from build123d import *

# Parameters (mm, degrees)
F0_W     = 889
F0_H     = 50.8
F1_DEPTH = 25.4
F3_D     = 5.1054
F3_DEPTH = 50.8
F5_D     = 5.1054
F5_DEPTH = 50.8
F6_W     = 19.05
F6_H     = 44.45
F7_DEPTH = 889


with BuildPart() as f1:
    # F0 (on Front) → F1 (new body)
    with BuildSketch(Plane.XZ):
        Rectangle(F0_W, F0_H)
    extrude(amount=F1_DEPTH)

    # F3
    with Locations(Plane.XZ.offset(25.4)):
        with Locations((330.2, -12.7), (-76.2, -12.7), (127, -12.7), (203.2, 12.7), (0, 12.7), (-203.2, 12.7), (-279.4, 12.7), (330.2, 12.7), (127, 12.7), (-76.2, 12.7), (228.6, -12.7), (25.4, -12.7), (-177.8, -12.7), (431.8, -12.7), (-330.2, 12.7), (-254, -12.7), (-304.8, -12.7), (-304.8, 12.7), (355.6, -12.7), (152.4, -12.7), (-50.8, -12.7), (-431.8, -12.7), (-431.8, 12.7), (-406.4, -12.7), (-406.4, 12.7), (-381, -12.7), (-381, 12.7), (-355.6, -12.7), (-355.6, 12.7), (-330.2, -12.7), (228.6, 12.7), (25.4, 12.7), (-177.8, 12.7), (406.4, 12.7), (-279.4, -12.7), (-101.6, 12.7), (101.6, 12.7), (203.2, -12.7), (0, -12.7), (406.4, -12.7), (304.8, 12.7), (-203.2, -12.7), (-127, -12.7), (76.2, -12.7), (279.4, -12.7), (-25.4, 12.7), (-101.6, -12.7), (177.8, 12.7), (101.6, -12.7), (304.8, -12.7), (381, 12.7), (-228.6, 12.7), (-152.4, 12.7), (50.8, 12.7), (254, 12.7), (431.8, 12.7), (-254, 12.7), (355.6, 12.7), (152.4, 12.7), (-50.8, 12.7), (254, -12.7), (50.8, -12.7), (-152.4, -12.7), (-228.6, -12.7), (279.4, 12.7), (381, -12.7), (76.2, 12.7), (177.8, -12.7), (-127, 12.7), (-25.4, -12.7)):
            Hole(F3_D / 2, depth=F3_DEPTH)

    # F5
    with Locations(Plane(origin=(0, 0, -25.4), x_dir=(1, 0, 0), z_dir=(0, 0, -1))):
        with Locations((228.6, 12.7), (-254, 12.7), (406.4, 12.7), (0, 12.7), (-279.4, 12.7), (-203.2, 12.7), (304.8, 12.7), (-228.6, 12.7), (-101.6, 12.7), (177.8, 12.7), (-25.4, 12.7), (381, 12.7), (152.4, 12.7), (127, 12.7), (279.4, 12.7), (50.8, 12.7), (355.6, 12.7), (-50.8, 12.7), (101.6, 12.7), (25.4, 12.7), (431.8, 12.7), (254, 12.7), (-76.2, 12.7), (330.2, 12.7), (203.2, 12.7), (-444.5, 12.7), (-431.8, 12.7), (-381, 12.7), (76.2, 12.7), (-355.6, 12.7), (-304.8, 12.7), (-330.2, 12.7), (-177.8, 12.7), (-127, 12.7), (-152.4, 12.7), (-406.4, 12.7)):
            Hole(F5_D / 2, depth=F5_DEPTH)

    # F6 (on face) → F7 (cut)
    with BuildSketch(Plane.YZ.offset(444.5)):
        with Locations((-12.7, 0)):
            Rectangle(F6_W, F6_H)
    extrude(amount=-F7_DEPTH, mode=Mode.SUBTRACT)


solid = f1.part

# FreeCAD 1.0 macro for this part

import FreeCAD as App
import Part
import Sketcher
from FreeCAD import Vector
Q = App.Units.Quantity


def add_polygon(sketch, points):
    """Adds a closed chain of lines whose ends are joined by coincident constraints."""
    first, n = sketch.GeometryCount, len(points)
    for a, b in zip(points, points[1:] + points[:1]):
        sketch.addGeometry(Part.LineSegment(App.Vector(*a, 0), App.Vector(*b, 0)), False)
    for i in range(n):
        sketch.addConstraint(Sketcher.Constraint("Coincident", first + i, 2, first + (i + 1) % n, 1))

doc = App.newDocument("Part")
body = doc.addObject("PartDesign::Body", "Body")

sketch1 = doc.addObject("Sketcher::SketchObject", "Sketch")
body.addObject(sketch1)
sketch1.AttachmentSupport = (doc.XZ_Plane, [""])
sketch1.MapMode = "FlatFace"
add_polygon(sketch1, [(-444, 25), (-444, -25), (444, -25), (444, 25)])
sketch1.addConstraint([
    Sketcher.Constraint("Vertical", 0),
    Sketcher.Constraint("Horizontal", 1),
    Sketcher.Constraint("Vertical", 2),
    Sketcher.Constraint("Horizontal", 3),
    Sketcher.Constraint("Symmetric", 0, 2, 2, 2, -1, 1),
    Sketcher.Constraint("DistanceX", 1, 1, 1, 2, Q("35 in")),
    Sketcher.Constraint("DistanceY", 0, 2, 0, 1, Q("2 in")),
])
pad1 = doc.addObject("PartDesign::Pad", "Pad")
body.addObject(pad1)
pad1.Profile = sketch1
pad1.Length = Q("1 in")

sketch2 = doc.addObject("Sketcher::SketchObject", "Sketch001")
body.addObject(sketch2)
sketch2.AttachmentSupport = (doc.XZ_Plane, [""])
sketch2.MapMode = "FlatFace"
sketch2.AttachmentOffset = App.Placement(Vector(0, 0, 1 * 25.4), App.Rotation())
sketch2.addGeometry([
    Part.Circle(Vector(330.2, -12.7, 0), Vector(0, 0, 1), 2.6),
    Part.Circle(Vector(-76.2, -12.7, 0), Vector(0, 0, 1), 2.6),
    Part.Circle(Vector(127, -12.7, 0), Vector(0, 0, 1), 2.6),
    Part.Circle(Vector(203.2, 12.7, 0), Vector(0, 0, 1), 2.6),
    Part.Circle(Vector(0, 12.7, 0), Vector(0, 0, 1), 2.6),
    Part.Circle(Vector(-203.2, 12.7, 0), Vector(0, 0, 1), 2.6),
    Part.Circle(Vector(-279.4, 12.7, 0), Vector(0, 0, 1), 2.6),
    Part.Circle(Vector(330.2, 12.7, 0), Vector(0, 0, 1), 2.6),
    Part.Circle(Vector(127, 12.7, 0), Vector(0, 0, 1), 2.6),
    Part.Circle(Vector(-76.2, 12.7, 0), Vector(0, 0, 1), 2.6),
    Part.Circle(Vector(228.6, -12.7, 0), Vector(0, 0, 1), 2.6),
    Part.Circle(Vector(25.4, -12.7, 0), Vector(0, 0, 1), 2.6),
    Part.Circle(Vector(-177.8, -12.7, 0), Vector(0, 0, 1), 2.6),
    Part.Circle(Vector(431.8, -12.7, 0), Vector(0, 0, 1), 2.6),
    Part.Circle(Vector(-330.2, 12.7, 0), Vector(0, 0, 1), 2.6),
    Part.Circle(Vector(-254, -12.7, 0), Vector(0, 0, 1), 2.6),
    Part.Circle(Vector(-304.8, -12.7, 0), Vector(0, 0, 1), 2.6),
    Part.Circle(Vector(-304.8, 12.7, 0), Vector(0, 0, 1), 2.6),
    Part.Circle(Vector(355.6, -12.7, 0), Vector(0, 0, 1), 2.6),
    Part.Circle(Vector(152.4, -12.7, 0), Vector(0, 0, 1), 2.6),
    Part.Circle(Vector(-50.8, -12.7, 0), Vector(0, 0, 1), 2.6),
    Part.Circle(Vector(-431.8, -12.7, 0), Vector(0, 0, 1), 2.6),
    Part.Circle(Vector(-431.8, 12.7, 0), Vector(0, 0, 1), 2.6),
    Part.Circle(Vector(-406.4, -12.7, 0), Vector(0, 0, 1), 2.6),
    Part.Circle(Vector(-406.4, 12.7, 0), Vector(0, 0, 1), 2.6),
    Part.Circle(Vector(-381, -12.7, 0), Vector(0, 0, 1), 2.6),
    Part.Circle(Vector(-381, 12.7, 0), Vector(0, 0, 1), 2.6),
    Part.Circle(Vector(-355.6, -12.7, 0), Vector(0, 0, 1), 2.6),
    Part.Circle(Vector(-355.6, 12.7, 0), Vector(0, 0, 1), 2.6),
    Part.Circle(Vector(-330.2, -12.7, 0), Vector(0, 0, 1), 2.6),
    Part.Circle(Vector(228.6, 12.7, 0), Vector(0, 0, 1), 2.6),
    Part.Circle(Vector(25.4, 12.7, 0), Vector(0, 0, 1), 2.6),
    Part.Circle(Vector(-177.8, 12.7, 0), Vector(0, 0, 1), 2.6),
    Part.Circle(Vector(406.4, 12.7, 0), Vector(0, 0, 1), 2.6),
    Part.Circle(Vector(-279.4, -12.7, 0), Vector(0, 0, 1), 2.6),
    Part.Circle(Vector(-101.6, 12.7, 0), Vector(0, 0, 1), 2.6),
    Part.Circle(Vector(101.6, 12.7, 0), Vector(0, 0, 1), 2.6),
    Part.Circle(Vector(203.2, -12.7, 0), Vector(0, 0, 1), 2.6),
    Part.Circle(Vector(0, -12.7, 0), Vector(0, 0, 1), 2.6),
    Part.Circle(Vector(406.4, -12.7, 0), Vector(0, 0, 1), 2.6),
    Part.Circle(Vector(304.8, 12.7, 0), Vector(0, 0, 1), 2.6),
    Part.Circle(Vector(-203.2, -12.7, 0), Vector(0, 0, 1), 2.6),
    Part.Circle(Vector(-127, -12.7, 0), Vector(0, 0, 1), 2.6),
    Part.Circle(Vector(76.2, -12.7, 0), Vector(0, 0, 1), 2.6),
    Part.Circle(Vector(279.4, -12.7, 0), Vector(0, 0, 1), 2.6),
    Part.Circle(Vector(-25.4, 12.7, 0), Vector(0, 0, 1), 2.6),
    Part.Circle(Vector(-101.6, -12.7, 0), Vector(0, 0, 1), 2.6),
    Part.Circle(Vector(177.8, 12.7, 0), Vector(0, 0, 1), 2.6),
    Part.Circle(Vector(101.6, -12.7, 0), Vector(0, 0, 1), 2.6),
    Part.Circle(Vector(304.8, -12.7, 0), Vector(0, 0, 1), 2.6),
    Part.Circle(Vector(381, 12.7, 0), Vector(0, 0, 1), 2.6),
    Part.Circle(Vector(-228.6, 12.7, 0), Vector(0, 0, 1), 2.6),
    Part.Circle(Vector(-152.4, 12.7, 0), Vector(0, 0, 1), 2.6),
    Part.Circle(Vector(50.8, 12.7, 0), Vector(0, 0, 1), 2.6),
    Part.Circle(Vector(254, 12.7, 0), Vector(0, 0, 1), 2.6),
    Part.Circle(Vector(431.8, 12.7, 0), Vector(0, 0, 1), 2.6),
    Part.Circle(Vector(-254, 12.7, 0), Vector(0, 0, 1), 2.6),
    Part.Circle(Vector(355.6, 12.7, 0), Vector(0, 0, 1), 2.6),
    Part.Circle(Vector(152.4, 12.7, 0), Vector(0, 0, 1), 2.6),
    Part.Circle(Vector(-50.8, 12.7, 0), Vector(0, 0, 1), 2.6),
    Part.Circle(Vector(254, -12.7, 0), Vector(0, 0, 1), 2.6),
    Part.Circle(Vector(50.8, -12.7, 0), Vector(0, 0, 1), 2.6),
    Part.Circle(Vector(-152.4, -12.7, 0), Vector(0, 0, 1), 2.6),
    Part.Circle(Vector(-228.6, -12.7, 0), Vector(0, 0, 1), 2.6),
    Part.Circle(Vector(279.4, 12.7, 0), Vector(0, 0, 1), 2.6),
    Part.Circle(Vector(381, -12.7, 0), Vector(0, 0, 1), 2.6),
    Part.Circle(Vector(76.2, 12.7, 0), Vector(0, 0, 1), 2.6),
    Part.Circle(Vector(177.8, -12.7, 0), Vector(0, 0, 1), 2.6),
    Part.Circle(Vector(-127, 12.7, 0), Vector(0, 0, 1), 2.6),
    Part.Circle(Vector(-25.4, -12.7, 0), Vector(0, 0, 1), 2.6),
], False)
sketch2.addConstraint([
    Sketcher.Constraint("Equal", 0, 1),
    Sketcher.Constraint("Equal", 1, 2),
    Sketcher.Constraint("Equal", 2, 3),
    Sketcher.Constraint("Equal", 3, 4),
    Sketcher.Constraint("Equal", 4, 5),
    Sketcher.Constraint("Equal", 5, 6),
    Sketcher.Constraint("Equal", 6, 7),
    Sketcher.Constraint("Equal", 7, 8),
    Sketcher.Constraint("Equal", 8, 9),
    Sketcher.Constraint("Equal", 9, 10),
    Sketcher.Constraint("Equal", 10, 11),
    Sketcher.Constraint("Equal", 11, 12),
    Sketcher.Constraint("Equal", 12, 13),
    Sketcher.Constraint("Equal", 13, 14),
    Sketcher.Constraint("Equal", 14, 15),
    Sketcher.Constraint("Equal", 15, 16),
    Sketcher.Constraint("Equal", 16, 17),
    Sketcher.Constraint("Equal", 17, 18),
    Sketcher.Constraint("Equal", 18, 19),
    Sketcher.Constraint("Equal", 19, 20),
    Sketcher.Constraint("Equal", 20, 21),
    Sketcher.Constraint("Equal", 21, 22),
    Sketcher.Constraint("Equal", 22, 23),
    Sketcher.Constraint("Equal", 23, 24),
    Sketcher.Constraint("Equal", 24, 25),
    Sketcher.Constraint("Equal", 25, 26),
    Sketcher.Constraint("Equal", 26, 27),
    Sketcher.Constraint("Equal", 27, 28),
    Sketcher.Constraint("Equal", 28, 29),
    Sketcher.Constraint("Equal", 29, 30),
    Sketcher.Constraint("Equal", 30, 31),
    Sketcher.Constraint("Equal", 31, 32),
    Sketcher.Constraint("Equal", 32, 33),
    Sketcher.Constraint("Equal", 33, 34),
    Sketcher.Constraint("Equal", 34, 35),
    Sketcher.Constraint("Equal", 35, 36),
    Sketcher.Constraint("Equal", 36, 37),
    Sketcher.Constraint("Equal", 37, 38),
    Sketcher.Constraint("Equal", 38, 39),
    Sketcher.Constraint("Equal", 39, 40),
    Sketcher.Constraint("Equal", 40, 41),
    Sketcher.Constraint("Equal", 41, 42),
    Sketcher.Constraint("Equal", 42, 43),
    Sketcher.Constraint("Equal", 43, 44),
    Sketcher.Constraint("Equal", 44, 45),
    Sketcher.Constraint("Equal", 45, 46),
    Sketcher.Constraint("Equal", 46, 47),
    Sketcher.Constraint("Equal", 47, 48),
    Sketcher.Constraint("Equal", 48, 49),
    Sketcher.Constraint("Equal", 49, 50),
    Sketcher.Constraint("Equal", 50, 51),
    Sketcher.Constraint("Equal", 51, 52),
    Sketcher.Constraint("Equal", 52, 53),
    Sketcher.Constraint("Equal", 53, 54),
    Sketcher.Constraint("Equal", 54, 55),
    Sketcher.Constraint("Equal", 55, 56),
    Sketcher.Constraint("Equal", 56, 57),
    Sketcher.Constraint("Equal", 57, 58),
    Sketcher.Constraint("Equal", 58, 59),
    Sketcher.Constraint("Equal", 59, 60),
    Sketcher.Constraint("Equal", 60, 61),
    Sketcher.Constraint("Equal", 61, 62),
    Sketcher.Constraint("Equal", 62, 63),
    Sketcher.Constraint("Equal", 63, 64),
    Sketcher.Constraint("Equal", 64, 65),
    Sketcher.Constraint("Equal", 65, 66),
    Sketcher.Constraint("Equal", 66, 67),
    Sketcher.Constraint("Equal", 67, 68),
    Sketcher.Constraint("Equal", 68, 69),
    Sketcher.Constraint("Symmetric", 0, 3, 14, 3, -1, 1),
    Sketcher.Constraint("Symmetric", 13, 3, 22, 3, -1, 1),
    Sketcher.Constraint("Symmetric", 18, 3, 28, 3, -1, 1),
    Sketcher.Constraint("Symmetric", 7, 3, 29, 3, -1, 1),
    Sketcher.Constraint("Symmetric", 23, 3, 33, 3, -1, 1),
    Sketcher.Constraint("Symmetric", 5, 3, 37, 3, -1, 1),
    Sketcher.Constraint("Symmetric", 4, 3, 38, 3, -1, 1),
    Sketcher.Constraint("Symmetric", 24, 3, 39, 3, -1, 1),
    Sketcher.Constraint("Symmetric", 16, 3, 40, 3, -1, 1),
    Sketcher.Constraint("Symmetric", 3, 3, 41, 3, -1, 1),
    Sketcher.Constraint("Symmetric", 8, 3, 42, 3, -1, 1),
    Sketcher.Constraint("Symmetric", 9, 3, 43, 3, -1, 1),
    Sketcher.Constraint("Symmetric", 6, 3, 44, 3, -1, 1),
    Sketcher.Constraint("Symmetric", 11, 3, 45, 3, -1, 1),
    Sketcher.Constraint("Symmetric", 36, 3, 46, 3, -1, 1),
    Sketcher.Constraint("Symmetric", 12, 3, 47, 3, -1, 1),
    Sketcher.Constraint("Symmetric", 35, 3, 48, 3, -1, 1),
    Sketcher.Constraint("Symmetric", 17, 3, 49, 3, -1, 1),
    Sketcher.Constraint("Symmetric", 25, 3, 50, 3, -1, 1),
    Sketcher.Constraint("Symmetric", 10, 3, 51, 3, -1, 1),
    Sketcher.Constraint("Symmetric", 19, 3, 52, 3, -1, 1),
    Sketcher.Constraint("Symmetric", 20, 3, 53, 3, -1, 1),
    Sketcher.Constraint("Symmetric", 15, 3, 54, 3, -1, 1),
    Sketcher.Constraint("Symmetric", 21, 3, 55, 3, -1, 1),
    Sketcher.Constraint("Symmetric", 27, 3, 57, 3, -1, 1),
    Sketcher.Constraint("Symmetric", 56, 3, 60, 3, -1, 1),
    Sketcher.Constraint("Symmetric", 59, 3, 61, 3, -1, 1),
    Sketcher.Constraint("Symmetric", 58, 3, 62, 3, -1, 1),
    Sketcher.Constraint("Symmetric", 30, 3, 63, 3, -1, 1),
    Sketcher.Constraint("Symmetric", 34, 3, 64, 3, -1, 1),
    Sketcher.Constraint("Symmetric", 26, 3, 65, 3, -1, 1),
    Sketcher.Constraint("Symmetric", 1, 3, 66, 3, -1, 1),
    Sketcher.Constraint("Symmetric", 32, 3, 67, 3, -1, 1),
    Sketcher.Constraint("Symmetric", 2, 3, 68, 3, -1, 1),
    Sketcher.Constraint("Symmetric", 31, 3, 69, 3, -1, 1),
    Sketcher.Constraint("Symmetric", 3, 3, 5, 3, -2),
    Sketcher.Constraint("Symmetric", 7, 3, 14, 3, -2),
    Sketcher.Constraint("Symmetric", 13, 3, 21, 3, -2),
    Sketcher.Constraint("Symmetric", 18, 3, 27, 3, -2),
    Sketcher.Constraint("Symmetric", 24, 3, 33, 3, -2),
    Sketcher.Constraint("Symmetric", 35, 3, 36, 3, -2),
    Sketcher.Constraint("Symmetric", 17, 3, 40, 3, -2),
    Sketcher.Constraint("Symmetric", 2, 3, 42, 3, -2),
    Sketcher.Constraint("Symmetric", 1, 3, 43, 3, -2),
    Sketcher.Constraint("Symmetric", 34, 3, 44, 3, -2),
    Sketcher.Constraint("Symmetric", 31, 3, 45, 3, -2),
    Sketcher.Constraint("Symmetric", 32, 3, 47, 3, -2),
    Sketcher.Constraint("Symmetric", 26, 3, 50, 3, -2),
    Sketcher.Constraint("Symmetric", 30, 3, 51, 3, -2),
    Sketcher.Constraint("Symmetric", 54, 3, 56, 3, -2),
    Sketcher.Constraint("Symmetric", 52, 3, 58, 3, -2),
    Sketcher.Constraint("Symmetric", 53, 3, 59, 3, -2),
    Sketcher.Constraint("PointOnObject", 4, 3, -2),
    Sketcher.Constraint("Horizontal", 0, 3, 1, 3),
    Sketcher.Constraint("Horizontal", 1, 3, 2, 3),
    Sketcher.Constraint("Horizontal", 3, 3, 4, 3),
    Sketcher.Constraint("Horizontal", 5, 3, 6, 3),
    Sketcher.Constraint("Horizontal", 6, 3, 7, 3),
    Sketcher.Constraint("Horizontal", 2, 3, 10, 3),
    Sketcher.Constraint("Horizontal", 10, 3, 11, 3),
    Sketcher.Constraint("Horizontal", 11, 3, 12, 3),
    Sketcher.Constraint("Horizontal", 12, 3, 13, 3),
    Sketcher.Constraint("Horizontal", 13, 3, 15, 3),
    Sketcher.Constraint("Horizontal", 15, 3, 16, 3),
    Sketcher.Constraint("Horizontal", 16, 3, 18, 3),
    Sketcher.Constraint("Horizontal", 18, 3, 19, 3),
    Sketcher.Constraint("Horizontal", 19, 3, 20, 3),
    Sketcher.Constraint("Horizontal", 21, 3, 23, 3),
    Sketcher.Constraint("Horizontal", 23, 3, 25, 3),
    Sketcher.Constraint("Horizontal", 33, 3, 35, 3),
    Sketcher.Constraint("Diameter", 0, Q("0.201 in")),
    Sketcher.Constraint("DistanceX", -1, 1, 0, 3, Q("13 in")),
    Sketcher.Constraint("DistanceX", 1, 3, -1, 1, Q("3 in")),
    Sketcher.Constraint("DistanceX", -1, 1, 2, 3, Q("5 in")),
    Sketcher.Constraint("DistanceX", -1, 1, 3, 3, Q("8 in")),
    Sketcher.Constraint("DistanceX", 6, 3, -1, 1, Q("11 in")),
    Sketcher.Constraint("DistanceX", -1, 1, 10, 3, Q("9 in")),
    Sketcher.Constraint("DistanceX", -1, 1, 11, 3, Q("1 in")),
    Sketcher.Constraint("DistanceX", 12, 3, -1, 1, Q("7 in")),
    Sketcher.Constraint("DistanceX", -1, 1, 13, 3, Q("17 in")),
    Sketcher.Constraint("DistanceX", 15, 3, -1, 1, Q("10 in")),
    Sketcher.Constraint("DistanceX", 16, 3, -1, 1, Q("12 in")),
    Sketcher.Constraint("DistanceX", -1, 1, 18, 3, Q("14 in")),
    Sketcher.Constraint("DistanceX", -1, 1, 19, 3, Q("6 in")),
    Sketcher.Constraint("DistanceX", 20, 3, -1, 1, Q("2 in")),
    Sketcher.Constraint("DistanceX", 23, 3, -1, 1, Q("16 in")),
    Sketcher.Constraint("DistanceX", 25, 3, -1, 1, Q("15 in")),
    Sketcher.Constraint("DistanceX", 35, 3, -1, 1, Q("4 in")),
    Sketcher.Constraint("DistanceY", 0, 3, -1, 1, Q("0.5 in")),
])
doc.recompute()
hole = doc.addObject("PartDesign::Hole", "Hole")
body.addObject(hole)
hole.Profile = sketch2
hole.ThreadType = "None"
hole.Diameter = Q("0.201 in")
hole.DepthType = "Dimension"
hole.Depth = Q("2 in")
hole.DrillPoint = "Flat"

sketch3 = doc.addObject("Sketcher::SketchObject", "Sketch002")
body.addObject(sketch3)
sketch3.AttachmentSupport = (doc.XY_Plane, [""])
sketch3.MapMode = "FlatFace"
sketch3.AttachmentOffset = App.Placement(Vector(0, 0, -1 * 25.4), App.Rotation())
sketch3.addGeometry([
    Part.Circle(Vector(228.6, -12.7, 0), Vector(0, 0, 1), 2.6),
    Part.Circle(Vector(-254, -12.7, 0), Vector(0, 0, 1), 2.6),
    Part.Circle(Vector(406.4, -12.7, 0), Vector(0, 0, 1), 2.6),
    Part.Circle(Vector(0, -12.7, 0), Vector(0, 0, 1), 2.6),
    Part.Circle(Vector(-279.4, -12.7, 0), Vector(0, 0, 1), 2.6),
    Part.Circle(Vector(-203.2, -12.7, 0), Vector(0, 0, 1), 2.6),
    Part.Circle(Vector(304.8, -12.7, 0), Vector(0, 0, 1), 2.6),
    Part.Circle(Vector(-228.6, -12.7, 0), Vector(0, 0, 1), 2.6),
    Part.Circle(Vector(-101.6, -12.7, 0), Vector(0, 0, 1), 2.6),
    Part.Circle(Vector(177.8, -12.7, 0), Vector(0, 0, 1), 2.6),
    Part.Circle(Vector(-25.4, -12.7, 0), Vector(0, 0, 1), 2.6),
    Part.Circle(Vector(381, -12.7, 0), Vector(0, 0, 1), 2.6),
    Part.Circle(Vector(152.4, -12.7, 0), Vector(0, 0, 1), 2.6),
    Part.Circle(Vector(127, -12.7, 0), Vector(0, 0, 1), 2.6),
    Part.Circle(Vector(279.4, -12.7, 0), Vector(0, 0, 1), 2.6),
    Part.Circle(Vector(50.8, -12.7, 0), Vector(0, 0, 1), 2.6),
    Part.Circle(Vector(355.6, -12.7, 0), Vector(0, 0, 1), 2.6),
    Part.Circle(Vector(-50.8, -12.7, 0), Vector(0, 0, 1), 2.6),
    Part.Circle(Vector(101.6, -12.7, 0), Vector(0, 0, 1), 2.6),
    Part.Circle(Vector(25.4, -12.7, 0), Vector(0, 0, 1), 2.6),
    Part.Circle(Vector(431.8, -12.7, 0), Vector(0, 0, 1), 2.6),
    Part.Circle(Vector(254, -12.7, 0), Vector(0, 0, 1), 2.6),
    Part.Circle(Vector(-76.2, -12.7, 0), Vector(0, 0, 1), 2.6),
    Part.Circle(Vector(330.2, -12.7, 0), Vector(0, 0, 1), 2.6),
    Part.Circle(Vector(203.2, -12.7, 0), Vector(0, 0, 1), 2.6),
    Part.Circle(Vector(-444.5, -12.7, 0), Vector(0, 0, 1), 2.6),
    Part.Circle(Vector(-431.8, -12.7, 0), Vector(0, 0, 1), 2.6),
    Part.Circle(Vector(-381, -12.7, 0), Vector(0, 0, 1), 2.6),
    Part.Circle(Vector(76.2, -12.7, 0), Vector(0, 0, 1), 2.6),
    Part.Circle(Vector(-355.6, -12.7, 0), Vector(0, 0, 1), 2.6),
    Part.Circle(Vector(-304.8, -12.7, 0), Vector(0, 0, 1), 2.6),
    Part.Circle(Vector(-330.2, -12.7, 0), Vector(0, 0, 1), 2.6),
    Part.Circle(Vector(-177.8, -12.7, 0), Vector(0, 0, 1), 2.6),
    Part.Circle(Vector(-127, -12.7, 0), Vector(0, 0, 1), 2.6),
    Part.Circle(Vector(-152.4, -12.7, 0), Vector(0, 0, 1), 2.6),
    Part.Circle(Vector(-406.4, -12.7, 0), Vector(0, 0, 1), 2.6),
], False)
sketch3.addConstraint([
    Sketcher.Constraint("Equal", 0, 1),
    Sketcher.Constraint("Equal", 1, 2),
    Sketcher.Constraint("Equal", 2, 3),
    Sketcher.Constraint("Equal", 3, 4),
    Sketcher.Constraint("Equal", 4, 5),
    Sketcher.Constraint("Equal", 5, 6),
    Sketcher.Constraint("Equal", 6, 7),
    Sketcher.Constraint("Equal", 7, 8),
    Sketcher.Constraint("Equal", 8, 9),
    Sketcher.Constraint("Equal", 9, 10),
    Sketcher.Constraint("Equal", 10, 11),
    Sketcher.Constraint("Equal", 11, 12),
    Sketcher.Constraint("Equal", 12, 13),
    Sketcher.Constraint("Equal", 13, 14),
    Sketcher.Constraint("Equal", 14, 15),
    Sketcher.Constraint("Equal", 15, 16),
    Sketcher.Constraint("Equal", 16, 17),
    Sketcher.Constraint("Equal", 17, 18),
    Sketcher.Constraint("Equal", 18, 19),
    Sketcher.Constraint("Equal", 19, 20),
    Sketcher.Constraint("Equal", 20, 21),
    Sketcher.Constraint("Equal", 21, 22),
    Sketcher.Constraint("Equal", 22, 23),
    Sketcher.Constraint("Equal", 23, 24),
    Sketcher.Constraint("Equal", 24, 25),
    Sketcher.Constraint("Equal", 25, 26),
    Sketcher.Constraint("Equal", 26, 27),
    Sketcher.Constraint("Equal", 27, 28),
    Sketcher.Constraint("Equal", 28, 29),
    Sketcher.Constraint("Equal", 29, 30),
    Sketcher.Constraint("Equal", 30, 31),
    Sketcher.Constraint("Equal", 31, 32),
    Sketcher.Constraint("Equal", 32, 33),
    Sketcher.Constraint("Equal", 33, 34),
    Sketcher.Constraint("Equal", 34, 35),
    Sketcher.Constraint("Symmetric", 0, 3, 7, 3, -2),
    Sketcher.Constraint("Symmetric", 4, 3, 14, 3, -2),
    Sketcher.Constraint("Symmetric", 15, 3, 17, 3, -2),
    Sketcher.Constraint("Symmetric", 8, 3, 18, 3, -2),
    Sketcher.Constraint("Symmetric", 10, 3, 19, 3, -2),
    Sketcher.Constraint("Symmetric", 1, 3, 21, 3, -2),
    Sketcher.Constraint("Symmetric", 5, 3, 24, 3, -2),
    Sketcher.Constraint("Symmetric", 20, 3, 26, 3, -2),
    Sketcher.Constraint("Symmetric", 11, 3, 27, 3, -2),
    Sketcher.Constraint("Symmetric", 22, 3, 28, 3, -2),
    Sketcher.Constraint("Symmetric", 16, 3, 29, 3, -2),
    Sketcher.Constraint("Symmetric", 6, 3, 30, 3, -2),
    Sketcher.Constraint("Symmetric", 23, 3, 31, 3, -2),
    Sketcher.Constraint("Symmetric", 9, 3, 32, 3, -2),
    Sketcher.Constraint("Symmetric", 13, 3, 33, 3, -2),
    Sketcher.Constraint("Symmetric", 12, 3, 34, 3, -2),
    Sketcher.Constraint("Symmetric", 2, 3, 35, 3, -2),
    Sketcher.Constraint("PointOnObject", 3, 3, -2),
    Sketcher.Constraint("Horizontal", 0, 3, 1, 3),
    Sketcher.Constraint("Horizontal", 1, 3, 2, 3),
    Sketcher.Constraint("Horizontal", 2, 3, 3, 3),
    Sketcher.Constraint("Horizontal", 3, 3, 4, 3),
    Sketcher.Constraint("Horizontal", 4, 3, 5, 3),
    Sketcher.Constraint("Horizontal", 5, 3, 6, 3),
    Sketcher.Constraint("Horizontal", 7, 3, 8, 3),
    Sketcher.Constraint("Horizontal", 8, 3, 9, 3),
    Sketcher.Constraint("Horizontal", 9, 3, 10, 3),
    Sketcher.Constraint("Horizontal", 10, 3, 11, 3),
    Sketcher.Constraint("Horizontal", 11, 3, 12, 3),
    Sketcher.Constraint("Horizontal", 12, 3, 13, 3),
    Sketcher.Constraint("Horizontal", 14, 3, 15, 3),
    Sketcher.Constraint("Horizontal", 15, 3, 16, 3),
    Sketcher.Constraint("Horizontal", 19, 3, 20, 3),
    Sketcher.Constraint("Horizontal", 21, 3, 22, 3),
    Sketcher.Constraint("Horizontal", 22, 3, 23, 3),
    Sketcher.Constraint("Horizontal", 24, 3, 25, 3),
    Sketcher.Constraint("Diameter", 0, Q("0.201 in")),
    Sketcher.Constraint("DistanceX", -1, 1, 0, 3, Q("9 in")),
    Sketcher.Constraint("DistanceX", 1, 3, -1, 1, Q("10 in")),
    Sketcher.Constraint("DistanceX", -1, 1, 2, 3, Q("16 in")),
    Sketcher.Constraint("DistanceX", 4, 3, -1, 1, Q("11 in")),
    Sketcher.Constraint("DistanceX", 5, 3, -1, 1, Q("8 in")),
    Sketcher.Constraint("DistanceX", -1, 1, 6, 3, Q("12 in")),
    Sketcher.Constraint("DistanceX", 8, 3, -1, 1, Q("4 in")),
    Sketcher.Constraint("DistanceX", -1, 1, 9, 3, Q("7 in")),
    Sketcher.Constraint("DistanceX", 10, 3, -1, 1, Q("1 in")),
    Sketcher.Constraint("DistanceX", -1, 1, 11, 3, Q("15 in")),
    Sketcher.Constraint("DistanceX", -1, 1, 12, 3, Q("6 in")),
    Sketcher.Constraint("DistanceX", -1, 1, 13, 3, Q("5 in")),
    Sketcher.Constraint("DistanceX", -1, 1, 15, 3, Q("2 in")),
    Sketcher.Constraint("DistanceX", -1, 1, 16, 3, Q("14 in")),
    Sketcher.Constraint("DistanceX", -1, 1, 20, 3, Q("17 in")),
    Sketcher.Constraint("DistanceX", 22, 3, -1, 1, Q("3 in")),
    Sketcher.Constraint("DistanceX", -1, 1, 23, 3, Q("13 in")),
    Sketcher.Constraint("DistanceY", 0, 3, -1, 1, Q("0.5 in")),
    Sketcher.Constraint("DistanceX", 25, 3, -1, 1, Q("17.5 in")),
])
doc.recompute()
hole2 = doc.addObject("PartDesign::Hole", "Hole001")
body.addObject(hole2)
hole2.Profile = sketch3
hole2.ThreadType = "None"
hole2.Diameter = Q("0.201 in")
hole2.DepthType = "Dimension"
hole2.Depth = Q("2 in")
hole2.DrillPoint = "Flat"
hole2.Reversed = True

sketch4 = doc.addObject("Sketcher::SketchObject", "Sketch003")
body.addObject(sketch4)
sketch4.AttachmentSupport = (doc.YZ_Plane, [""])
sketch4.MapMode = "FlatFace"
sketch4.AttachmentOffset = App.Placement(Vector(0, 0, 17.5 * 25.4), App.Rotation())
add_polygon(sketch4, [(-22, 22), (-22, -22), (-3, -22), (-3, 22)])
sketch4.addConstraint([
    Sketcher.Constraint("Vertical", 0),
    Sketcher.Constraint("Horizontal", 1),
    Sketcher.Constraint("Vertical", 2),
    Sketcher.Constraint("Horizontal", 3),
    Sketcher.Constraint("DistanceX", 1, 1, 1, 2, Q("0.75 in")),
    Sketcher.Constraint("DistanceY", 0, 2, 0, 1, Q("1.75 in")),
    Sketcher.Constraint("DistanceX", 0, 2, -1, 1, Q("0.875 in")),
    Sketcher.Constraint("DistanceY", 0, 2, -1, 1, Q("0.875 in")),
])
pocket1 = doc.addObject("PartDesign::Pocket", "Pocket")
body.addObject(pocket1)
pocket1.Profile = sketch4
pocket1.Length = Q("35 in")

doc.recompute()
